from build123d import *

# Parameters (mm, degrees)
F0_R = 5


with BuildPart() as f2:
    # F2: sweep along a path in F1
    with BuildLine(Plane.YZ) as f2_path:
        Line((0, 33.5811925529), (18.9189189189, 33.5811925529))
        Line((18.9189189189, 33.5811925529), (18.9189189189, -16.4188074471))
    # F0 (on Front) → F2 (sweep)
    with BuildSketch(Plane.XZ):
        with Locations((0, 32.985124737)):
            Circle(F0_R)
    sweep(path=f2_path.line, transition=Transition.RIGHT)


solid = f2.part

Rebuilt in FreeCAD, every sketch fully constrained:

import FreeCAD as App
import Part
import Sketcher

V = App.Vector
Q = App.Units.Quantity

doc = App.newDocument("Part")
params = doc.addObject("Spreadsheet::Sheet", "Params")
for row, (alias, value) in enumerate([
    ("sketch1_diameter", "10 mm"),
    ("sketch2_height", "50 mm"),
], start=1):
    params.set(f"A{row}", alias)
    params.set(f"B{row}", "=" + value)
    params.setAlias(f"B{row}", alias)

body = doc.addObject("PartDesign::Body", "Body")

# Sketch on XZ plane
sketch1 = body.newObject("Sketcher::SketchObject", "Sketch")
sketch1.AttachmentSupport = (doc.getObject("XZ_Plane"), [""])
sketch1.MapMode = "FlatFace"
sketch1.addGeometry(Part.Circle(V(0, 32.985125, 0), V(0, 0, 1), 5), False)
sketch1.addConstraint(Sketcher.Constraint("PointOnObject", 0, 3, -2))
sketch1.addConstraint(Sketcher.Constraint("Diameter", 0, Q("10 mm")))
sketch1.addConstraint(Sketcher.Constraint("DistanceY", -1, 1, 0, 3, Q("32.985125 mm")))
sketch1.setExpression("Constraints[1]", "Params.sketch1_diameter")

# Sketch on YZ plane
sketch2 = body.newObject("Sketcher::SketchObject", "Sketch001")
sketch2.AttachmentSupport = (doc.getObject("YZ_Plane"), [""])
sketch2.MapMode = "FlatFace"
sketch2.addGeometry(Part.LineSegment(V(0, 33.581193, 0), V(18.918919, 33.581193, 0)), False)
sketch2.addGeometry(Part.LineSegment(V(18.918919, 33.581193, 0), V(18.918919, -16.418807, 0)), False)
sketch2.addConstraint(Sketcher.Constraint("Coincident", 0, 2, 1, 1))
sketch2.addConstraint(Sketcher.Constraint("Horizontal", 0))
sketch2.addConstraint(Sketcher.Constraint("Vertical", 1))
sketch2.addConstraint(Sketcher.Constraint("PointOnObject", 0, 1, -2))
sketch2.addConstraint(Sketcher.Constraint("DistanceY", 1, 2, 1, 1, Q("50 mm")))
sketch2.addConstraint(Sketcher.Constraint("DistanceX", 0, 1, 0, 2, Q("18.918919 mm")))
sketch2.addConstraint(Sketcher.Constraint("DistanceY", -1, 1, 0, 1, Q("33.581193 mm")))
sketch2.setExpression("Constraints[4]", "Params.sketch2_height")
doc.recompute()

additivepipe = body.newObject("PartDesign::AdditivePipe", "AdditivePipe")
additivepipe.Profile = sketch1
additivepipe.Spine = (sketch2, ["Edge1", "Edge2"])
additivepipe.Transition = "Right corner"

doc.recompute()
